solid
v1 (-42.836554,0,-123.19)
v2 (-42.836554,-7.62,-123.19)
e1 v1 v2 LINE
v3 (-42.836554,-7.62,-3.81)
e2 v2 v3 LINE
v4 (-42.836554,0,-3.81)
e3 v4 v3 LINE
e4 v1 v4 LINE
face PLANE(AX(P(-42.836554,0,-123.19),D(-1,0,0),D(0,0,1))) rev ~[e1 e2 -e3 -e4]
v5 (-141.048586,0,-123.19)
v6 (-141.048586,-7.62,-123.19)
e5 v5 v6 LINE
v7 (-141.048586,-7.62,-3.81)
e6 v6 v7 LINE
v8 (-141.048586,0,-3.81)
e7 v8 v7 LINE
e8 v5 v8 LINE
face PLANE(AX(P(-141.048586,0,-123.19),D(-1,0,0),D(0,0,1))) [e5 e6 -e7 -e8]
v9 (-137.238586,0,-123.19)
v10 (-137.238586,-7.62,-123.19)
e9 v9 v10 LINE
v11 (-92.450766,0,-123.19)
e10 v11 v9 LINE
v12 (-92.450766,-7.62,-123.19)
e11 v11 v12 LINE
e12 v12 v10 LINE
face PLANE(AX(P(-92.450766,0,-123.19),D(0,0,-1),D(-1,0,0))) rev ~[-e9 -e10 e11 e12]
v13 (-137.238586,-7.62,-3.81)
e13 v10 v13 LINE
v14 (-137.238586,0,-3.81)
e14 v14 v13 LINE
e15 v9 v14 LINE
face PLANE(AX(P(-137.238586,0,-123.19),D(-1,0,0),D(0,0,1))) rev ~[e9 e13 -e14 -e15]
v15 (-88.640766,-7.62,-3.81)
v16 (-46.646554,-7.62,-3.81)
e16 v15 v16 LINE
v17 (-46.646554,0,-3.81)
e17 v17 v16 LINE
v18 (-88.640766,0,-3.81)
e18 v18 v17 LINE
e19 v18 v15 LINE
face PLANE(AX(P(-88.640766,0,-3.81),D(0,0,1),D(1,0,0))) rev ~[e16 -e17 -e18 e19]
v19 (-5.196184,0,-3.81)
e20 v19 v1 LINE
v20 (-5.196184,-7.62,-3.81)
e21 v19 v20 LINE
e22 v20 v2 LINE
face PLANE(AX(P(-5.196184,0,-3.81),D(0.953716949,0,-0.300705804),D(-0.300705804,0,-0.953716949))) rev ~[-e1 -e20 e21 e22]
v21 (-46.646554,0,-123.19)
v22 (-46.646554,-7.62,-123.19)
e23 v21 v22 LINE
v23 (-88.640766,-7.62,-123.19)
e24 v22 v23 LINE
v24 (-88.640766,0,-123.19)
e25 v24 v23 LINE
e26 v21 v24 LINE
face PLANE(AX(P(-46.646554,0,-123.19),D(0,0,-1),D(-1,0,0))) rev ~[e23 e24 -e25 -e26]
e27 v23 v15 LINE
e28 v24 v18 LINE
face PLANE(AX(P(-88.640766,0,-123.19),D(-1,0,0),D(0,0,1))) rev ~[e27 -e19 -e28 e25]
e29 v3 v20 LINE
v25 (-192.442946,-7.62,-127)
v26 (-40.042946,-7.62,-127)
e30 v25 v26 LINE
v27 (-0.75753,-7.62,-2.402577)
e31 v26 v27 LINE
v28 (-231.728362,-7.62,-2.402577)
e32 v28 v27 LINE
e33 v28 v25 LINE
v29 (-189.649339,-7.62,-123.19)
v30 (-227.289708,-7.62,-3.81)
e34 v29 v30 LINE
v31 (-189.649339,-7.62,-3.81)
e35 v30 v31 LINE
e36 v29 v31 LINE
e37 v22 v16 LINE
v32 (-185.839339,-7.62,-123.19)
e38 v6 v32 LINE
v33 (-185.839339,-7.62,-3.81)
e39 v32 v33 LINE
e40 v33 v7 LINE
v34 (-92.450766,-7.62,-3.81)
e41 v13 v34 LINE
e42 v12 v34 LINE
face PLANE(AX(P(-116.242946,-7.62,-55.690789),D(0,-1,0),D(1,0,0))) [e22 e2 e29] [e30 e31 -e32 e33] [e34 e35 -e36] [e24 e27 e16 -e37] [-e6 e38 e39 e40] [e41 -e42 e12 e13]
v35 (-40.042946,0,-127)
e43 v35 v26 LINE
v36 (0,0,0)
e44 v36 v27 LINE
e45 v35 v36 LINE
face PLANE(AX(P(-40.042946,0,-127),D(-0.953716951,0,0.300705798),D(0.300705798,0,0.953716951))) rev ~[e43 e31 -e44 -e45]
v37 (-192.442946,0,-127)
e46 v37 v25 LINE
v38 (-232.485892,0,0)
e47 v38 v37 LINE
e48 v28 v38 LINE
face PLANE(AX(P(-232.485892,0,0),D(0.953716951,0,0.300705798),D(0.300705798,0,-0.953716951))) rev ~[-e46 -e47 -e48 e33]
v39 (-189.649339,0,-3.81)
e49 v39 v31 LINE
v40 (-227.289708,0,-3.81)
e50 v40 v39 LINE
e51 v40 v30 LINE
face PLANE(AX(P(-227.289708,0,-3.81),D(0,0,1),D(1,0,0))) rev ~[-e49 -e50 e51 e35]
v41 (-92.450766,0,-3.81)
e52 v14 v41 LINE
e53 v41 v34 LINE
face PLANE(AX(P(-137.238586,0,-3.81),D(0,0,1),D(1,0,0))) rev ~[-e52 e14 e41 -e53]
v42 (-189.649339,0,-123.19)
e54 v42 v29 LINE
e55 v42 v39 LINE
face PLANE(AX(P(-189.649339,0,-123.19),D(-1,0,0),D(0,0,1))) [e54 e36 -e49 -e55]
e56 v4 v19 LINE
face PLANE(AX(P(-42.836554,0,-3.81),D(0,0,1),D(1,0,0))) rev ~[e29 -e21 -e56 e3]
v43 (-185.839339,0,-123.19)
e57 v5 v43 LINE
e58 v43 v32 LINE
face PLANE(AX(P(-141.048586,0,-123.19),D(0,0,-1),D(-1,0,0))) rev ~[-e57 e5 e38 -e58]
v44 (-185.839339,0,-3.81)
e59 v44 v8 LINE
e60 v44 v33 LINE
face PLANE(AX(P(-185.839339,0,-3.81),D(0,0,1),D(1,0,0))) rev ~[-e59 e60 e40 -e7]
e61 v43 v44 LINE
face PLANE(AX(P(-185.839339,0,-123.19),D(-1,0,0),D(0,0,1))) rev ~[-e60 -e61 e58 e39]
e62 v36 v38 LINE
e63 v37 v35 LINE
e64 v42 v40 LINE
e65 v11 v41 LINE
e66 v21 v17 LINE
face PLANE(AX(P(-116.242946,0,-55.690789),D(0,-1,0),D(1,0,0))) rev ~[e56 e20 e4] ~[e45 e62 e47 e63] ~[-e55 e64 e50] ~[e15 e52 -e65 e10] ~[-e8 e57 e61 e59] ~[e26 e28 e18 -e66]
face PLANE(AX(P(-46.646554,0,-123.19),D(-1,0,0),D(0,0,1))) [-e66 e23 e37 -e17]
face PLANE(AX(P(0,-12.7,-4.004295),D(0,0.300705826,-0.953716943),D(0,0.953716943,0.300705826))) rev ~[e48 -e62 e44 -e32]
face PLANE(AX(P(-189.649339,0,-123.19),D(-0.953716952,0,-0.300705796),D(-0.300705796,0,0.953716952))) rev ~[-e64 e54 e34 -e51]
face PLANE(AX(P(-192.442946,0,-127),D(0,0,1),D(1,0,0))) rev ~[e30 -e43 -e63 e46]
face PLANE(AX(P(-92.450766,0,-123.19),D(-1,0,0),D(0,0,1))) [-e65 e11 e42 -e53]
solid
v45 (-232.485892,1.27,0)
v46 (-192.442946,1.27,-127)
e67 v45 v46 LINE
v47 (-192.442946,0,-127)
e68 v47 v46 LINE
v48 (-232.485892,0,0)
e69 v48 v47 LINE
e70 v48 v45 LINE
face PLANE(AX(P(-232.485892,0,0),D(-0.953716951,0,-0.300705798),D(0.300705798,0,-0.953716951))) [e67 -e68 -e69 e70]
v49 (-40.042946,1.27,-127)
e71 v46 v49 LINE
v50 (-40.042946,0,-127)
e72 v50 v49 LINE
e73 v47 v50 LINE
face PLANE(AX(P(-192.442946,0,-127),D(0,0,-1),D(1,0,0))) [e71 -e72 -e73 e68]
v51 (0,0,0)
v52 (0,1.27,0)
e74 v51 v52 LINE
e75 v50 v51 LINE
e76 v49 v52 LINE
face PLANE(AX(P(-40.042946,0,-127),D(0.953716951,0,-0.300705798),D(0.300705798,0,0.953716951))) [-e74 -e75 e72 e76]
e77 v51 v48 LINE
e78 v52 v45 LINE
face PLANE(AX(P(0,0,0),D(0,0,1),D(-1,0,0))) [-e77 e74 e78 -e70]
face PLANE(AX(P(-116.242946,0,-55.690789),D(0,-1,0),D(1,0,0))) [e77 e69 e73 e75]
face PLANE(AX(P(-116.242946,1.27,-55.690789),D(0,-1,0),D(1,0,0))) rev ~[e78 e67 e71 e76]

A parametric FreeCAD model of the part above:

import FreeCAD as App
import Part
import Sketcher
from FreeCAD import Vector
Q = App.Units.Quantity

doc = App.newDocument("Part")
body = doc.addObject("PartDesign::Body", "Body")

# Sketch on XZ plane
sketch1 = body.newObject("Sketcher::SketchObject", "Sketch")
sketch1.AttachmentSupport = (doc.getObject("XZ_Plane"), [""])
sketch1.MapMode = "FlatFace"
sketch1.addGeometry([
    Part.LineSegment(Vector(-40, -127, 0), Vector(0, 0, 0)),  # 0
    Part.LineSegment(Vector(0, 0, 0), Vector(-232, 0, 0)),  # 1
    Part.LineSegment(Vector(-232, 0, 0), Vector(-192, -127, 0)),  # 2
    Part.LineSegment(Vector(-192, -127, 0), Vector(-40, -127, 0)),  # 3
    Part.LineSegment(Vector(-227, -4, 0), Vector(-190, -4, 0)),  # 4
    Part.LineSegment(Vector(-190, -4, 0), Vector(-190, -123, 0)),  # 5
    Part.LineSegment(Vector(-190, -123, 0), Vector(-227, -4, 0)),  # 6
    Part.LineSegment(Vector(-186, -4, 0), Vector(-141, -4, 0)),  # 7
    Part.LineSegment(Vector(-141, -4, 0), Vector(-141, -123, 0)),  # 8
    Part.LineSegment(Vector(-141, -123, 0), Vector(-186, -123, 0)),  # 9
    Part.LineSegment(Vector(-186, -123, 0), Vector(-186, -4, 0)),  # 10
    Part.LineSegment(Vector(-137, -4, 0), Vector(-92, -4, 0)),  # 11
    Part.LineSegment(Vector(-92, -4, 0), Vector(-92, -123, 0)),  # 12
    Part.LineSegment(Vector(-92, -123, 0), Vector(-137, -123, 0)),  # 13
    Part.LineSegment(Vector(-137, -123, 0), Vector(-137, -4, 0)),  # 14
    Part.LineSegment(Vector(-89, -4, 0), Vector(-47, -4, 0)),  # 15
    Part.LineSegment(Vector(-47, -4, 0), Vector(-47, -123, 0)),  # 16
    Part.LineSegment(Vector(-47, -123, 0), Vector(-89, -123, 0)),  # 17
    Part.LineSegment(Vector(-89, -123, 0), Vector(-89, -4, 0)),  # 18
    Part.LineSegment(Vector(-43, -4, 0), Vector(-5, -4, 0)),  # 19
    Part.LineSegment(Vector(-5, -4, 0), Vector(-43, -123, 0)),  # 20
    Part.LineSegment(Vector(-43, -123, 0), Vector(-43, -4, 0)),  # 21
], False)
sketch1.addConstraint([
    Sketcher.Constraint("Coincident", 0, 2, 1, 1),
    Sketcher.Constraint("Coincident", 1, 2, 2, 1),
    Sketcher.Constraint("Coincident", 2, 2, 3, 1),
    Sketcher.Constraint("Coincident", 3, 2, 0, 1),
    Sketcher.Constraint("Coincident", 4, 2, 5, 1),
    Sketcher.Constraint("Coincident", 5, 2, 6, 1),
    Sketcher.Constraint("Coincident", 6, 2, 4, 1),
    Sketcher.Constraint("Coincident", 7, 2, 8, 1),
    Sketcher.Constraint("Coincident", 8, 2, 9, 1),
    Sketcher.Constraint("Coincident", 9, 2, 10, 1),
    Sketcher.Constraint("Coincident", 10, 2, 7, 1),
    Sketcher.Constraint("Coincident", 11, 2, 12, 1),
    Sketcher.Constraint("Coincident", 12, 2, 13, 1),
    Sketcher.Constraint("Coincident", 13, 2, 14, 1),
    Sketcher.Constraint("Coincident", 14, 2, 11, 1),
    Sketcher.Constraint("Coincident", 15, 2, 16, 1),
    Sketcher.Constraint("Coincident", 16, 2, 17, 1),
    Sketcher.Constraint("Coincident", 17, 2, 18, 1),
    Sketcher.Constraint("Coincident", 18, 2, 15, 1),
    Sketcher.Constraint("Coincident", 19, 2, 20, 1),
    Sketcher.Constraint("Coincident", 20, 2, 21, 1),
    Sketcher.Constraint("Coincident", 21, 2, 19, 1),
    Sketcher.Constraint("Horizontal", 1),
    Sketcher.Constraint("Horizontal", 3),
    Sketcher.Constraint("Horizontal", 4),
    Sketcher.Constraint("Vertical", 5),
    Sketcher.Constraint("Horizontal", 7),
    Sketcher.Constraint("Vertical", 8),
    Sketcher.Constraint("Horizontal", 9),
    Sketcher.Constraint("Vertical", 10),
    Sketcher.Constraint("Horizontal", 11),
    Sketcher.Constraint("Vertical", 12),
    Sketcher.Constraint("Horizontal", 13),
    Sketcher.Constraint("Vertical", 14),
    Sketcher.Constraint("Horizontal", 15),
    Sketcher.Constraint("Vertical", 16),
    Sketcher.Constraint("Horizontal", 17),
    Sketcher.Constraint("Vertical", 18),
    Sketcher.Constraint("Horizontal", 19),
    Sketcher.Constraint("Vertical", 21),
    Sketcher.Constraint("Coincident", 0, 2, -1, 1),
    Sketcher.Constraint("Parallel", 2, 6),
    Sketcher.Constraint("Parallel", 0, 20),
    Sketcher.Constraint("Horizontal", 6, 2, 7, 2),
    Sketcher.Constraint("Horizontal", 5, 2, 8, 2),
    Sketcher.Constraint("Horizontal", 10, 2, 11, 2),
    Sketcher.Constraint("Horizontal", 9, 2, 12, 2),
    Sketcher.Constraint("Horizontal", 14, 2, 15, 2),
    Sketcher.Constraint("Horizontal", 13, 2, 16, 2),
    Sketcher.Constraint("Horizontal", 18, 2, 19, 2),
    Sketcher.Constraint("Horizontal", 17, 2, 20, 2),
    Sketcher.Constraint("Equal", 4, 19),
    Sketcher.Constraint("DistanceX", 3, 1, 3, 2, Q("6 in")),
    Sketcher.Constraint("DistanceY", 5, 2, 5, 1, Q("4.7 in")),
    Sketcher.Constraint("DistanceY", 2, 2, -1, 1, Q("5 in")),
    Sketcher.Constraint("Angle", 0, Q("72.5 deg")),
    Sketcher.Constraint("DistanceY", 4, 2, -1, 1, Q("0.15 in")),
    Sketcher.Constraint("DistanceX", 5, 2, 9, 2, Q("0.15 in")),
    Sketcher.Constraint("DistanceX", 8, 2, 13, 2, Q("0.15 in")),
    Sketcher.Constraint("DistanceX", 12, 2, 17, 2, Q("0.15 in")),
    Sketcher.Constraint("DistanceX", 16, 2, 20, 2, Q("0.15 in")),
    Sketcher.Constraint("DistanceX", 11, 1, 11, 2, Q("1.7633 in")),
    Sketcher.Constraint("DistanceX", 2, 2, 7, 2, Q("2.0234 in")),
    Sketcher.Constraint("DistanceX", 15, 1, 15, 2, Q("41.994212 mm")),
    Sketcher.Constraint("DistanceX", 7, 1, 7, 2, Q("44.790753 mm")),
])
pad1 = body.newObject("PartDesign::Pad", "Pad")
pad1.Profile = sketch1
pad1.Length = Q("0.3 in")

# Sketch on YZ plane
sketch2 = body.newObject("Sketcher::SketchObject", "Sketch001")
sketch2.AttachmentSupport = (doc.getObject("YZ_Plane"), [""])
sketch2.MapMode = "FlatFace"
sketch2.addGeometry([
    Part.LineSegment(Vector(-12.7, -4, 0), Vector(0, 0, 0)),
    Part.LineSegment(Vector(0, 0, 0), Vector(-12.7, 0, 0)),
    Part.LineSegment(Vector(-12.7, 0, 0), Vector(-12.7, -4, 0)),
], False)
sketch2.addConstraint([
    Sketcher.Constraint("Coincident", 0, 2, 1, 1),
    Sketcher.Constraint("Coincident", 1, 2, 2, 1),
    Sketcher.Constraint("Coincident", 2, 2, 0, 1),
    Sketcher.Constraint("Horizontal", 1),
    Sketcher.Constraint("Vertical", 2),
    Sketcher.Constraint("Coincident", 0, 2, -1, 1),
    Sketcher.Constraint("DistanceX", 1, 2, 1, 1, Q("0.5 in")),
    Sketcher.Constraint("Angle", 0, Q("17.500002 deg")),
])
pocket1 = body.newObject("PartDesign::Pocket", "Pocket")
pocket1.Profile = sketch2
pocket1.Length = Q("85 in")
body2 = doc.addObject("PartDesign::Body", "Body001")

# Sketch on XZ plane
sketch3 = body2.newObject("Sketcher::SketchObject", "Sketch002")
sketch3.AttachmentSupport = (doc.getObject("XZ_Plane001"), [""])
sketch3.MapMode = "FlatFace"
sketch3.addGeometry([
    Part.LineSegment(Vector(-40, -127, 0), Vector(0, 0, 0)),
    Part.LineSegment(Vector(0, 0, 0), Vector(-232, 0, 0)),
    Part.LineSegment(Vector(-232, 0, 0), Vector(-192, -127, 0)),
    Part.LineSegment(Vector(-192, -127, 0), Vector(-40, -127, 0)),
], False)
sketch3.addConstraint([
    Sketcher.Constraint("Coincident", 0, 2, 1, 1),
    Sketcher.Constraint("Coincident", 1, 2, 2, 1),
    Sketcher.Constraint("Coincident", 2, 2, 3, 1),
    Sketcher.Constraint("Coincident", 3, 2, 0, 1),
    Sketcher.Constraint("Horizontal", 1),
    Sketcher.Constraint("Horizontal", 3),
    Sketcher.Constraint("Coincident", 0, 2, -1, 1),
    Sketcher.Constraint("Equal", 0, 2),
    Sketcher.Constraint("DistanceX", 3, 1, 3, 2, Q("6 in")),
    Sketcher.Constraint("DistanceY", 2, 2, -1, 1, Q("5 in")),
    Sketcher.Constraint("Angle", 0, Q("72.5 deg")),
])
pad2 = body2.newObject("PartDesign::Pad", "Pad001")
pad2.Profile = sketch3
pad2.Length = Q("0.05 in")
pad2.Reversed = True

doc.recompute()
